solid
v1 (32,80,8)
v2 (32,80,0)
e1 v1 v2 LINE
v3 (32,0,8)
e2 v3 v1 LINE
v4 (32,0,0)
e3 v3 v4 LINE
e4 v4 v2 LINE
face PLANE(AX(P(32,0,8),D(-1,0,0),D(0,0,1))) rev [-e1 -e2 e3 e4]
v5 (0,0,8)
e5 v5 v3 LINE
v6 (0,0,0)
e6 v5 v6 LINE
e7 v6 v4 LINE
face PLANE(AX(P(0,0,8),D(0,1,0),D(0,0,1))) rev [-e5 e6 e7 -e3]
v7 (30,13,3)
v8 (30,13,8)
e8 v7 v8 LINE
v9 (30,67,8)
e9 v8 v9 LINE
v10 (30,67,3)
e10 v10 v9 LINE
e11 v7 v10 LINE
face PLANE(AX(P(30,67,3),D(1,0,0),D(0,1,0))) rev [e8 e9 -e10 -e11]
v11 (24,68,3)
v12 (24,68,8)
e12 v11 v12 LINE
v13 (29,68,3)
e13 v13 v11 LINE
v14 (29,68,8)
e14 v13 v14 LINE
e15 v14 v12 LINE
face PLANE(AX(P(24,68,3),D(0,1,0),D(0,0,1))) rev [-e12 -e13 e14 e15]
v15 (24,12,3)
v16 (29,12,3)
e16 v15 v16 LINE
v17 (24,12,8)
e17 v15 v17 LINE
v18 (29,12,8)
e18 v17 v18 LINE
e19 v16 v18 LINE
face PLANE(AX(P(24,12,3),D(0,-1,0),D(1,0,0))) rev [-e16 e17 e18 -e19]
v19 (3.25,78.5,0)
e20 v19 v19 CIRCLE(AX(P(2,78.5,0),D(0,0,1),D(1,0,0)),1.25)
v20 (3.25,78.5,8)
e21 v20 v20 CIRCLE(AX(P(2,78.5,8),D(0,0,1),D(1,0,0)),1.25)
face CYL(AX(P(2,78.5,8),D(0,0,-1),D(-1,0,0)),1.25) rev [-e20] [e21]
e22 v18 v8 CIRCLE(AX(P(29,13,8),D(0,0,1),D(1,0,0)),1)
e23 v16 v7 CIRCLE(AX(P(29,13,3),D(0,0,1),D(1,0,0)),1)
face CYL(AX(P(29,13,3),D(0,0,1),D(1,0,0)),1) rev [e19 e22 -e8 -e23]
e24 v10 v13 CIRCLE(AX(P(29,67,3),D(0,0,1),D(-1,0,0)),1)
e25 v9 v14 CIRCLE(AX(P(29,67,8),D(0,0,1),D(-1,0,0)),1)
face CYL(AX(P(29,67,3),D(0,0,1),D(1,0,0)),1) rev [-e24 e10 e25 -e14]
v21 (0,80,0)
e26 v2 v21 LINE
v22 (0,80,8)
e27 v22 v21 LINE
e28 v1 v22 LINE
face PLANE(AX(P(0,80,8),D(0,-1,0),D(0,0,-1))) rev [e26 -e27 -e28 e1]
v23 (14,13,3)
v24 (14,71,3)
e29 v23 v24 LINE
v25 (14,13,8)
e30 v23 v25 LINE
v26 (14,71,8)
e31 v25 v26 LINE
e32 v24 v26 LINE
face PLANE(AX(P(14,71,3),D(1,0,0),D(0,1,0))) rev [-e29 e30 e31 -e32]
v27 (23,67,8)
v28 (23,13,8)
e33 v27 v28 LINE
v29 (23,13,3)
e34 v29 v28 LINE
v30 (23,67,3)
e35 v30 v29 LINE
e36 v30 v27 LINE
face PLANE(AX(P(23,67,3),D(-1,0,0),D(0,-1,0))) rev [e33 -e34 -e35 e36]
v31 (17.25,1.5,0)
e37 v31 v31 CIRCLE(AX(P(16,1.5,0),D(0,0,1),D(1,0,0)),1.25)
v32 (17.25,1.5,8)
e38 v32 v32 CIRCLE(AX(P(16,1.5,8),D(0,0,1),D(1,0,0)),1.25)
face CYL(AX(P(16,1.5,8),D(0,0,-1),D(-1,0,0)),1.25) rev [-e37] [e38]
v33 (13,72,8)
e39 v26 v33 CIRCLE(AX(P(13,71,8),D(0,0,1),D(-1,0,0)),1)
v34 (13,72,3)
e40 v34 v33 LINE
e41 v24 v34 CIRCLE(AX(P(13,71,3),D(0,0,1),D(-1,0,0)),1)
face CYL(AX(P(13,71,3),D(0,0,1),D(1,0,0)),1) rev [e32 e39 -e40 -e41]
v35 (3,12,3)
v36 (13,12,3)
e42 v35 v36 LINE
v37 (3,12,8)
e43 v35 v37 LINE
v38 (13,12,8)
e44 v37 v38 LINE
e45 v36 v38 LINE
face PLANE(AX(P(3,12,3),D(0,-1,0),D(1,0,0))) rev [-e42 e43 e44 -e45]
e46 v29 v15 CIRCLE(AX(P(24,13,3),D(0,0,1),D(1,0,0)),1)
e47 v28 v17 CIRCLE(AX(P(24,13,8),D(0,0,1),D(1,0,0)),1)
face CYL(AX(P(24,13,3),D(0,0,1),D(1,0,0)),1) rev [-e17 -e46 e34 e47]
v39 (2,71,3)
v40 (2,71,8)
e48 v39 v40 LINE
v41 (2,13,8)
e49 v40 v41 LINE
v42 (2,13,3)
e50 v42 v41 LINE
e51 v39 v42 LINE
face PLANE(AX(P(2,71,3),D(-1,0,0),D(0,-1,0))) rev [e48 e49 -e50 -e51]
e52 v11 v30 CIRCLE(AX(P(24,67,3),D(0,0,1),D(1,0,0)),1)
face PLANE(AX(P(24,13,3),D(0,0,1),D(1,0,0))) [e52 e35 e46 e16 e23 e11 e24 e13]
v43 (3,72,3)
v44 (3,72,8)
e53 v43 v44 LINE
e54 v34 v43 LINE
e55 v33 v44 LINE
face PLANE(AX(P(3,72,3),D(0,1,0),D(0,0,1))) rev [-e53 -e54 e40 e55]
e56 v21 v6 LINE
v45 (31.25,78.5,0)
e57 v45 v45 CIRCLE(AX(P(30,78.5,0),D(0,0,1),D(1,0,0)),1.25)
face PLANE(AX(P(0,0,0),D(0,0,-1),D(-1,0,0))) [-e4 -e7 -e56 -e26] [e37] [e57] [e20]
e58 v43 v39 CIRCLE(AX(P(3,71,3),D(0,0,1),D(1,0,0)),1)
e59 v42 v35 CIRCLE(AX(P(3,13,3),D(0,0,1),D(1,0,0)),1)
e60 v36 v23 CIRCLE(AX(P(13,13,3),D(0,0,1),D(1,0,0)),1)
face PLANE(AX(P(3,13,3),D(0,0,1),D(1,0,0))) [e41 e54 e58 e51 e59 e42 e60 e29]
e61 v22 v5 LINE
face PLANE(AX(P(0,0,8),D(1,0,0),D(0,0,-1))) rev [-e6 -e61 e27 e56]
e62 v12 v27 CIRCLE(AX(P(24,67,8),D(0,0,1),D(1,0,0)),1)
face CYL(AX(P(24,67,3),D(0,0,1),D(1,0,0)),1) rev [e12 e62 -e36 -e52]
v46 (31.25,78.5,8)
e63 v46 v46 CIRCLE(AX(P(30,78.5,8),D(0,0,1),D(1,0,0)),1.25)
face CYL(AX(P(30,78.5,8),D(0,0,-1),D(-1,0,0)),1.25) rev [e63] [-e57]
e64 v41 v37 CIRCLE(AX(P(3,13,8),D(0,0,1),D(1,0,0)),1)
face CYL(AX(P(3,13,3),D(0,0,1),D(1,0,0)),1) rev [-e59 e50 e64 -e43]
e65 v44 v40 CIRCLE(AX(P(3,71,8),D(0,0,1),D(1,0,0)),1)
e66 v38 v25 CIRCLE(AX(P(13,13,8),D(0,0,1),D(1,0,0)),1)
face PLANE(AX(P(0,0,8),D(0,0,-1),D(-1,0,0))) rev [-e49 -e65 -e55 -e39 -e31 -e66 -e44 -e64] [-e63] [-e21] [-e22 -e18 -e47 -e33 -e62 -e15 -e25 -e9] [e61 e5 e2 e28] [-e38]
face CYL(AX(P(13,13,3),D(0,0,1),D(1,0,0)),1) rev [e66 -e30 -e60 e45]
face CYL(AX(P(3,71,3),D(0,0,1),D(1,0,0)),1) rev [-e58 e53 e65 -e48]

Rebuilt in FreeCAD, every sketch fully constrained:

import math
import FreeCAD as App
import Part
import Sketcher
from FreeCAD import Vector
Q = App.Units.Quantity

doc = App.newDocument("Part")
params = doc.addObject("Spreadsheet::Sheet", "Params")
for row, (alias, value) in enumerate([
    ("sketch1_diameter", "2.5 mm"),
    ("sketch1_width", "32 mm"),
    ("sketch1_height", "80 mm"),
    ("pad1_length", "8 mm"),
    ("sketch2_radius", "1 mm"),
    ("sketch2_width", "5 mm"),
    ("sketch2_width2", "10 mm"),
    ("sketch2_height", "54 mm"),
    ("sketch2_height2", "58 mm"),
    ("pocket1_length", "5 mm"),
], start=1):
    params.set(f"A{row}", alias)
    params.set(f"B{row}", "=" + value)
    params.setAlias(f"B{row}", alias)

body = doc.addObject("PartDesign::Body", "Body")

# Sketch on XY plane
sketch1 = body.newObject("Sketcher::SketchObject", "Sketch")
sketch1.AttachmentSupport = (doc.getObject("XY_Plane"), [""])
sketch1.MapMode = "FlatFace"
sketch1.addGeometry(Part.LineSegment(Vector(0, 80, 0), Vector(0, 0, 0)), False)
sketch1.addGeometry(Part.LineSegment(Vector(0, 0, 0), Vector(32, 0, 0)), False)
sketch1.addGeometry(Part.LineSegment(Vector(32, 0, 0), Vector(32, 80, 0)), False)
sketch1.addGeometry(Part.LineSegment(Vector(32, 80, 0), Vector(0, 80, 0)), False)
sketch1.addGeometry(Part.Circle(Vector(16, 1.5, 0), Vector(0, 0, 1), 1.2), False)
sketch1.addGeometry(Part.Circle(Vector(2, 78.5, 0), Vector(0, 0, 1), 1.2), False)
sketch1.addGeometry(Part.Circle(Vector(30, 78.5, 0), Vector(0, 0, 1), 1.2), False)
sketch1.addConstraint(Sketcher.Constraint("Coincident", 0, 2, 1, 1))
sketch1.addConstraint(Sketcher.Constraint("Coincident", 1, 2, 2, 1))
sketch1.addConstraint(Sketcher.Constraint("Coincident", 2, 2, 3, 1))
sketch1.addConstraint(Sketcher.Constraint("Coincident", 3, 2, 0, 1))
sketch1.addConstraint(Sketcher.Constraint("Vertical", 0))
sketch1.addConstraint(Sketcher.Constraint("Horizontal", 1))
sketch1.addConstraint(Sketcher.Constraint("Vertical", 2))
sketch1.addConstraint(Sketcher.Constraint("Horizontal", 3))
sketch1.addConstraint(Sketcher.Constraint("Coincident", 0, 2, -1, 1))
sketch1.addConstraint(Sketcher.Constraint("Equal", 4, 5))
sketch1.addConstraint(Sketcher.Constraint("Equal", 5, 6))
sketch1.addConstraint(Sketcher.Constraint("Horizontal", 5, 3, 6, 3))
sketch1.addConstraint(Sketcher.Constraint("Diameter", 4, Q("2.5 mm")))
sketch1.addConstraint(Sketcher.Constraint("DistanceX", 1, 1, 1, 2, Q("32 mm")))
sketch1.addConstraint(Sketcher.Constraint("DistanceY", 0, 2, 0, 1, Q("80 mm")))
sketch1.addConstraint(Sketcher.Constraint("DistanceX", -1, 1, 4, 3, Q("16 mm")))
sketch1.addConstraint(Sketcher.Constraint("DistanceX", -1, 1, 5, 3, Q("2 mm")))
sketch1.addConstraint(Sketcher.Constraint("DistanceX", -1, 1, 6, 3, Q("30 mm")))
sketch1.addConstraint(Sketcher.Constraint("DistanceY", 4, 3, 5, 3, Q("77 mm")))
sketch1.addConstraint(Sketcher.Constraint("DistanceY", -1, 1, 4, 3, Q("1.5 mm")))
sketch1.setExpression("Constraints[12]", "Params.sketch1_diameter")
sketch1.setExpression("Constraints[13]", "Params.sketch1_width")
sketch1.setExpression("Constraints[14]", "Params.sketch1_height")
pad1 = body.newObject("PartDesign::Pad", "Pad")
pad1.Profile = sketch1
pad1.setExpression("Length", "Params.pad1_length")

# Sketch on XY plane
sketch2 = body.newObject("Sketcher::SketchObject", "Sketch001")
sketch2.AttachmentSupport = (doc.getObject("XY_Plane"), [""])
sketch2.MapMode = "FlatFace"
sketch2.AttachmentOffset = App.Placement(Vector(0, 0, 8), App.Rotation())
sketch2.addGeometry(Part.LineSegment(Vector(29, 68, 0), Vector(24, 68, 0)), False)
sketch2.addGeometry(Part.ArcOfCircle(Part.Circle(Vector(24, 67, 0), Vector(0, 0, 1), 1), math.radians(90), math.radians(180)), False)
sketch2.addGeometry(Part.LineSegment(Vector(23, 67, 0), Vector(23, 13, 0)), False)
sketch2.addGeometry(Part.ArcOfCircle(Part.Circle(Vector(24, 13, 0), Vector(0, 0, 1), 1), math.radians(-180), math.radians(-90)), False)
sketch2.addGeometry(Part.LineSegment(Vector(24, 12, 0), Vector(29, 12, 0)), False)
sketch2.addGeometry(Part.ArcOfCircle(Part.Circle(Vector(29, 13, 0), Vector(0, 0, 1), 1), math.radians(-90), math.radians(0)), False)
sketch2.addGeometry(Part.LineSegment(Vector(30, 13, 0), Vector(30, 67, 0)), False)
sketch2.addGeometry(Part.ArcOfCircle(Part.Circle(Vector(29, 67, 0), Vector(0, 0, 1), 1), math.radians(0), math.radians(90)), False)
sketch2.addGeometry(Part.LineSegment(Vector(13, 72, 0), Vector(3, 72, 0)), False)
sketch2.addGeometry(Part.ArcOfCircle(Part.Circle(Vector(3, 71, 0), Vector(0, 0, 1), 1), math.radians(90), math.radians(180)), False)
sketch2.addGeometry(Part.LineSegment(Vector(2, 71, 0), Vector(2, 13, 0)), False)
sketch2.addGeometry(Part.ArcOfCircle(Part.Circle(Vector(3, 13, 0), Vector(0, 0, 1), 1), math.radians(-180), math.radians(-90)), False)
sketch2.addGeometry(Part.LineSegment(Vector(3, 12, 0), Vector(13, 12, 0)), False)
sketch2.addGeometry(Part.ArcOfCircle(Part.Circle(Vector(13, 13, 0), Vector(0, 0, 1), 1), math.radians(-90), math.radians(0)), False)
sketch2.addGeometry(Part.LineSegment(Vector(14, 13, 0), Vector(14, 71, 0)), False)
sketch2.addGeometry(Part.ArcOfCircle(Part.Circle(Vector(13, 71, 0), Vector(0, 0, 1), 1), math.radians(0), math.radians(90)), False)
sketch2.addConstraint(Sketcher.Constraint("Tangent", 0, 2, 1, 1))
sketch2.addConstraint(Sketcher.Constraint("Tangent", 1, 2, 2, 1))
sketch2.addConstraint(Sketcher.Constraint("Tangent", 2, 2, 3, 1))
sketch2.addConstraint(Sketcher.Constraint("Tangent", 3, 2, 4, 1))
sketch2.addConstraint(Sketcher.Constraint("Tangent", 4, 2, 5, 1))
sketch2.addConstraint(Sketcher.Constraint("Tangent", 5, 2, 6, 1))
sketch2.addConstraint(Sketcher.Constraint("Tangent", 6, 2, 7, 1))
sketch2.addConstraint(Sketcher.Constraint("Tangent", 7, 2, 0, 1))
sketch2.addConstraint(Sketcher.Constraint("Tangent", 8, 2, 9, 1))
sketch2.addConstraint(Sketcher.Constraint("Tangent", 9, 2, 10, 1))
sketch2.addConstraint(Sketcher.Constraint("Tangent", 10, 2, 11, 1))
sketch2.addConstraint(Sketcher.Constraint("Tangent", 11, 2, 12, 1))
sketch2.addConstraint(Sketcher.Constraint("Tangent", 12, 2, 13, 1))
sketch2.addConstraint(Sketcher.Constraint("Tangent", 13, 2, 14, 1))
sketch2.addConstraint(Sketcher.Constraint("Tangent", 14, 2, 15, 1))
sketch2.addConstraint(Sketcher.Constraint("Tangent", 15, 2, 8, 1))
sketch2.addConstraint(Sketcher.Constraint("Horizontal", 0))
sketch2.addConstraint(Sketcher.Constraint("Vertical", 2))
sketch2.addConstraint(Sketcher.Constraint("Horizontal", 4))
sketch2.addConstraint(Sketcher.Constraint("Vertical", 6))
sketch2.addConstraint(Sketcher.Constraint("Horizontal", 8))
sketch2.addConstraint(Sketcher.Constraint("Vertical", 10))
sketch2.addConstraint(Sketcher.Constraint("Horizontal", 12))
sketch2.addConstraint(Sketcher.Constraint("Vertical", 14))
sketch2.addConstraint(Sketcher.Constraint("Equal", 1, 3))
sketch2.addConstraint(Sketcher.Constraint("Equal", 3, 5))
sketch2.addConstraint(Sketcher.Constraint("Equal", 5, 7))
sketch2.addConstraint(Sketcher.Constraint("Equal", 7, 9))
sketch2.addConstraint(Sketcher.Constraint("Equal", 9, 11))
sketch2.addConstraint(Sketcher.Constraint("Equal", 11, 13))
sketch2.addConstraint(Sketcher.Constraint("Equal", 13, 15))
sketch2.addConstraint(Sketcher.Constraint("Horizontal", 5, 3, 11, 3))
sketch2.addConstraint(Sketcher.Constraint("Radius", 1, Q("1 mm")))
sketch2.addConstraint(Sketcher.Constraint("DistanceX", 0, 2, 0, 1, Q("5 mm")))
sketch2.addConstraint(Sketcher.Constraint("DistanceX", 8, 2, 8, 1, Q("10 mm")))
sketch2.addConstraint(Sketcher.Constraint("DistanceY", 2, 2, 2, 1, Q("54 mm")))
sketch2.addConstraint(Sketcher.Constraint("DistanceY", 10, 2, 10, 1, Q("58 mm")))
sketch2.addConstraint(Sketcher.Constraint("DistanceX", -1, 1, 1, 3, Q("24 mm")))
sketch2.addConstraint(Sketcher.Constraint("DistanceY", -1, 1, 1, 3, Q("67 mm")))
sketch2.addConstraint(Sketcher.Constraint("DistanceX", -1, 1, 9, 3, Q("3 mm")))
sketch2.setExpression("Constraints[32]", "Params.sketch2_radius")
sketch2.setExpression("Constraints[33]", "Params.sketch2_width")
sketch2.setExpression("Constraints[34]", "Params.sketch2_width2")
sketch2.setExpression("Constraints[35]", "Params.sketch2_height")
sketch2.setExpression("Constraints[36]", "Params.sketch2_height2")
pocket1 = body.newObject("PartDesign::Pocket", "Pocket")
pocket1.Profile = sketch2
pocket1.setExpression("Length", "Params.pocket1_length")

doc.recompute()
